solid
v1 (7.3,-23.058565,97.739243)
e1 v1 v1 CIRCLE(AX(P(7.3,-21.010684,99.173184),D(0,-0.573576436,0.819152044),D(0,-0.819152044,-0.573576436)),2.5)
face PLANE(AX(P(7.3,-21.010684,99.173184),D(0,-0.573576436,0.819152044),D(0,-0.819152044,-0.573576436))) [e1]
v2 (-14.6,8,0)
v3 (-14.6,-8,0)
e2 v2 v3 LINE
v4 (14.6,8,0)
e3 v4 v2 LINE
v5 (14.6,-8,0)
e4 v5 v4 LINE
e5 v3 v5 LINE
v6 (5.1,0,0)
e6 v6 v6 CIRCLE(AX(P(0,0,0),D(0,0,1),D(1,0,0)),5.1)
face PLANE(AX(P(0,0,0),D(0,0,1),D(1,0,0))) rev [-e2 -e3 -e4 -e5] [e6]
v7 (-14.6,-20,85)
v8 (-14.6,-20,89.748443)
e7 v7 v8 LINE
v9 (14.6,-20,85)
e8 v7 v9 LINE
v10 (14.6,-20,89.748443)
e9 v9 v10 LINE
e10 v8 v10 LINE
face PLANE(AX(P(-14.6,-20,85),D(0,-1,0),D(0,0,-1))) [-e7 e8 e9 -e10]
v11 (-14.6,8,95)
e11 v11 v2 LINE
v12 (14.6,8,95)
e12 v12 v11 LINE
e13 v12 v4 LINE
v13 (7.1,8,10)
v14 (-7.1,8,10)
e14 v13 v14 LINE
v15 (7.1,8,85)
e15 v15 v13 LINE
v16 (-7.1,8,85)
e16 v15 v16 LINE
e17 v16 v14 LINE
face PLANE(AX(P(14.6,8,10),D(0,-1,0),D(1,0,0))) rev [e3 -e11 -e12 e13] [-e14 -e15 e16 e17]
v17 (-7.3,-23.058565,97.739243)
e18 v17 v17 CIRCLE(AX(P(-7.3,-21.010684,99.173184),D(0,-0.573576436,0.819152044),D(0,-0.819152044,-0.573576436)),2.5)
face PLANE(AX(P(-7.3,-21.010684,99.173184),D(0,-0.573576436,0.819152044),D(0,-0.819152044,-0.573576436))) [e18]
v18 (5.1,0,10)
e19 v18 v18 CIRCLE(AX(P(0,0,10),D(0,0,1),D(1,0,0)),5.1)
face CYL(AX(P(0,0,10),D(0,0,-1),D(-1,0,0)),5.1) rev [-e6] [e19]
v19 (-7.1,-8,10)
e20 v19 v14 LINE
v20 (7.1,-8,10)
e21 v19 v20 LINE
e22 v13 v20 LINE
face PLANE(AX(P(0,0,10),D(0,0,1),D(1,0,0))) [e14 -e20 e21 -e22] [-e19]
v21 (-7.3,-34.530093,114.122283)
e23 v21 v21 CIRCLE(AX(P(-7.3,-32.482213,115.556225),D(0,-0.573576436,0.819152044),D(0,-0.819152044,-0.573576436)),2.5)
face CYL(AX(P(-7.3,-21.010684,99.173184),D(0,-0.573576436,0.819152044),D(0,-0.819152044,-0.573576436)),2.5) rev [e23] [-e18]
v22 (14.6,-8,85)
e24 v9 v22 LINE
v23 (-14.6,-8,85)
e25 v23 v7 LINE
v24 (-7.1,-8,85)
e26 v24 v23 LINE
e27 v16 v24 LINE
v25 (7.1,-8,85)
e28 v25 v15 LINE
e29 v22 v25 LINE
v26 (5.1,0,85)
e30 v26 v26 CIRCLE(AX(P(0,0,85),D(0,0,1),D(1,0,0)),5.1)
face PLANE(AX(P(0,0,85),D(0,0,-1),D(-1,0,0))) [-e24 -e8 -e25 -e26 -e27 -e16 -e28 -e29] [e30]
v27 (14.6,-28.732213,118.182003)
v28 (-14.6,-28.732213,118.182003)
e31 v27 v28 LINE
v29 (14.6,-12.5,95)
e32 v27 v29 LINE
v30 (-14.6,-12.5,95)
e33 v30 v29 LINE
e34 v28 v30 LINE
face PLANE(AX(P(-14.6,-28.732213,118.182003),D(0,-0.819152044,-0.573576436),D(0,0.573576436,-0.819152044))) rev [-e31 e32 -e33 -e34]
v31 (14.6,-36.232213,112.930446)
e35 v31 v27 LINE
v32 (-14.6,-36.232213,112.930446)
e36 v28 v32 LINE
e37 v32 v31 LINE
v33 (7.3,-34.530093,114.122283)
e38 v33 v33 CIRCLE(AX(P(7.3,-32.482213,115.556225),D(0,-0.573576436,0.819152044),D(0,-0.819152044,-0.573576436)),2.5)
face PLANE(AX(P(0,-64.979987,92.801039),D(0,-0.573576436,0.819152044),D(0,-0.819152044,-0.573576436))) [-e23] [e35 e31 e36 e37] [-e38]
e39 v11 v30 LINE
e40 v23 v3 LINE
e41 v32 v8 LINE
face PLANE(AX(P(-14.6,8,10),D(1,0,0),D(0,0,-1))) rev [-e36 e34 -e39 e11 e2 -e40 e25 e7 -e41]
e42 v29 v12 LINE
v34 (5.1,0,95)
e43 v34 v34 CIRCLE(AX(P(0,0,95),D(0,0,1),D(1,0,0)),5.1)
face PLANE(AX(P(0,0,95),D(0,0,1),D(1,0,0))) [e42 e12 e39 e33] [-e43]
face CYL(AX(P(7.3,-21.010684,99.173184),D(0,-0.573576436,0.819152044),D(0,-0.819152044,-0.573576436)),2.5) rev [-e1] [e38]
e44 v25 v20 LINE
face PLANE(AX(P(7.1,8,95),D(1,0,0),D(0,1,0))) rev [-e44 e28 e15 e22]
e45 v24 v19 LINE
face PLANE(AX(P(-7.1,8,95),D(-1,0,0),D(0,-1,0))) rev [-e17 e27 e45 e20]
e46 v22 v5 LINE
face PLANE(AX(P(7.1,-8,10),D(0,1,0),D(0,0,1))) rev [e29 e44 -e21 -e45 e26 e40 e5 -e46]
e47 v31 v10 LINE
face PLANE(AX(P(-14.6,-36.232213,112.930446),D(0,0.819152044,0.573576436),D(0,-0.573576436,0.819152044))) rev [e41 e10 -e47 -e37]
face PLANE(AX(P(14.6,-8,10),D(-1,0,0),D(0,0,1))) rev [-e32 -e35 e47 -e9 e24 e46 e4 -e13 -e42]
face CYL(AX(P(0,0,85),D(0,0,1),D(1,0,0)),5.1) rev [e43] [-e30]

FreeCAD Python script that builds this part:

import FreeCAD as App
import Part
import Sketcher

V = App.Vector
Q = App.Units.Quantity

doc = App.newDocument("Part")
body = doc.addObject("PartDesign::Body", "Body")

sketch1 = doc.addObject("Sketcher::SketchObject", "Sketch")
body.addObject(sketch1)
sketch1.AttachmentSupport = (doc.XY_Plane, [""])
sketch1.MapMode = "FlatFace"
sketch1.addGeometry(Part.LineSegment(V(-15, 8, 0), V(-15, -8, 0)), False)
sketch1.addGeometry(Part.LineSegment(V(-15, -8, 0), V(15, -8, 0)), False)
sketch1.addGeometry(Part.LineSegment(V(15, -8, 0), V(15, 8, 0)), False)
sketch1.addGeometry(Part.LineSegment(V(15, 8, 0), V(-15, 8, 0)), False)
sketch1.addGeometry(Part.Circle(V(0, 0, 0), V(0, 0, 1), 5), False)
sketch1.addConstraint(Sketcher.Constraint("Coincident", 0, 2, 1, 1))
sketch1.addConstraint(Sketcher.Constraint("Coincident", 1, 2, 2, 1))
sketch1.addConstraint(Sketcher.Constraint("Coincident", 2, 2, 3, 1))
sketch1.addConstraint(Sketcher.Constraint("Coincident", 3, 2, 0, 1))
sketch1.addConstraint(Sketcher.Constraint("Vertical", 0))
sketch1.addConstraint(Sketcher.Constraint("Horizontal", 1))
sketch1.addConstraint(Sketcher.Constraint("Vertical", 2))
sketch1.addConstraint(Sketcher.Constraint("Horizontal", 3))
sketch1.addConstraint(Sketcher.Constraint("Coincident", 4, 3, -1, 1))
sketch1.addConstraint(Sketcher.Constraint("Symmetric", 0, 2, 2, 2, -1, 1))
sketch1.addConstraint(Sketcher.Constraint("Diameter", 4, Q("10.2 mm")))
sketch1.addConstraint(Sketcher.Constraint("DistanceY", 0, 2, 0, 1, Q("16 mm")))
sketch1.addConstraint(Sketcher.Constraint("DistanceX", 1, 1, 1, 2, Q("29.2 mm")))
pad1 = doc.addObject("PartDesign::Pad", "Pad")
body.addObject(pad1)
pad1.Profile = sketch1
pad1.Length = 10

sketch2 = doc.addObject("Sketcher::SketchObject", "Sketch001")
body.addObject(sketch2)
sketch2.AttachmentSupport = (doc.XY_Plane, [""])
sketch2.MapMode = "FlatFace"
sketch2.AttachmentOffset = App.Placement(V(0, 0, 10), App.Rotation())
sketch2.addGeometry(Part.LineSegment(V(-15, 8, 0), V(-15, -8, 0)), False)
sketch2.addGeometry(Part.LineSegment(V(-15, -8, 0), V(-7, -8, 0)), False)
sketch2.addGeometry(Part.LineSegment(V(-7, -8, 0), V(-7, 8, 0)), False)
sketch2.addGeometry(Part.LineSegment(V(-7, 8, 0), V(-15, 8, 0)), False)
sketch2.addGeometry(Part.LineSegment(V(7, 8, 0), V(7, -8, 0)), False)
sketch2.addGeometry(Part.LineSegment(V(7, -8, 0), V(15, -8, 0)), False)
sketch2.addGeometry(Part.LineSegment(V(15, -8, 0), V(15, 8, 0)), False)
sketch2.addGeometry(Part.LineSegment(V(15, 8, 0), V(7, 8, 0)), False)
sketch2.addConstraint(Sketcher.Constraint("Coincident", 0, 2, 1, 1))
sketch2.addConstraint(Sketcher.Constraint("Coincident", 1, 2, 2, 1))
sketch2.addConstraint(Sketcher.Constraint("Coincident", 2, 2, 3, 1))
sketch2.addConstraint(Sketcher.Constraint("Coincident", 3, 2, 0, 1))
sketch2.addConstraint(Sketcher.Constraint("Coincident", 4, 2, 5, 1))
sketch2.addConstraint(Sketcher.Constraint("Coincident", 5, 2, 6, 1))
sketch2.addConstraint(Sketcher.Constraint("Coincident", 6, 2, 7, 1))
sketch2.addConstraint(Sketcher.Constraint("Coincident", 7, 2, 4, 1))
sketch2.addConstraint(Sketcher.Constraint("Vertical", 0))
sketch2.addConstraint(Sketcher.Constraint("Horizontal", 1))
sketch2.addConstraint(Sketcher.Constraint("Vertical", 2))
sketch2.addConstraint(Sketcher.Constraint("Horizontal", 3))
sketch2.addConstraint(Sketcher.Constraint("Vertical", 4))
sketch2.addConstraint(Sketcher.Constraint("Horizontal", 5))
sketch2.addConstraint(Sketcher.Constraint("Vertical", 6))
sketch2.addConstraint(Sketcher.Constraint("Horizontal", 7))
sketch2.addConstraint(Sketcher.Constraint("Symmetric", 2, 2, 4, 2, -1, 1))
sketch2.addConstraint(Sketcher.Constraint("Symmetric", 0, 2, 6, 2, -1, 1))
sketch2.addConstraint(Sketcher.Constraint("Horizontal", 1, 2, 4, 2))
sketch2.addConstraint(Sketcher.Constraint("DistanceY", 0, 2, 0, 1, Q("16 mm")))
sketch2.addConstraint(Sketcher.Constraint("DistanceX", 1, 1, 1, 2, Q("7.5 mm")))
sketch2.addConstraint(Sketcher.Constraint("DistanceX", 0, 2, -1, 1, Q("14.6 mm")))
pad2 = doc.addObject("PartDesign::Pad", "Pad001")
body.addObject(pad2)
pad2.Profile = sketch2
pad2.Length = 85

sketch3 = doc.addObject("Sketcher::SketchObject", "Sketch002")
body.addObject(sketch3)
sketch3.AttachmentSupport = (doc.XY_Plane, [""])
sketch3.MapMode = "FlatFace"
sketch3.AttachmentOffset = App.Placement(V(0, 0, 95), App.Rotation())
sketch3.addGeometry(Part.LineSegment(V(-15, 8, 0), V(-15, -8, 0)), False)
sketch3.addGeometry(Part.LineSegment(V(-15, -8, 0), V(15, -8, 0)), False)
sketch3.addGeometry(Part.LineSegment(V(15, -8, 0), V(15, 8, 0)), False)
sketch3.addGeometry(Part.LineSegment(V(15, 8, 0), V(-15, 8, 0)), False)
sketch3.addGeometry(Part.Circle(V(0, 0, 0), V(0, 0, 1), 5), False)
sketch3.addConstraint(Sketcher.Constraint("Coincident", 0, 2, 1, 1))
sketch3.addConstraint(Sketcher.Constraint("Coincident", 1, 2, 2, 1))
sketch3.addConstraint(Sketcher.Constraint("Coincident", 2, 2, 3, 1))
sketch3.addConstraint(Sketcher.Constraint("Coincident", 3, 2, 0, 1))
sketch3.addConstraint(Sketcher.Constraint("Vertical", 0))
sketch3.addConstraint(Sketcher.Constraint("Horizontal", 1))
sketch3.addConstraint(Sketcher.Constraint("Vertical", 2))
sketch3.addConstraint(Sketcher.Constraint("Horizontal", 3))
sketch3.addConstraint(Sketcher.Constraint("Coincident", 4, 3, -1, 1))
sketch3.addConstraint(Sketcher.Constraint("Symmetric", 0, 2, 2, 2, -1, 1))
sketch3.addConstraint(Sketcher.Constraint("Diameter", 4, Q("10.2 mm")))
sketch3.addConstraint(Sketcher.Constraint("DistanceY", 0, 2, 0, 1, Q("16 mm")))
sketch3.addConstraint(Sketcher.Constraint("DistanceX", 1, 1, 1, 2, Q("29.2 mm")))
pad3 = doc.addObject("PartDesign::Pad", "Pad002")
body.addObject(pad3)
pad3.Profile = sketch3
pad3.Length = 10
pad3.Reversed = True

sketch4 = doc.addObject("Sketcher::SketchObject", "Sketch003")
body.addObject(sketch4)
sketch4.AttachmentSupport = (doc.XY_Plane, [""])
sketch4.MapMode = "FlatFace"
sketch4.AttachmentOffset = App.Placement(V(0, 0, 95), App.Rotation())
sketch4.addGeometry(Part.LineSegment(V(-15, -8, 0), V(-15, -20, 0)), False)
sketch4.addGeometry(Part.LineSegment(V(-15, -20, 0), V(15, -20, 0)), False)
sketch4.addGeometry(Part.LineSegment(V(15, -20, 0), V(15, -8, 0)), False)
sketch4.addGeometry(Part.LineSegment(V(15, -8, 0), V(-15, -8, 0)), False)
sketch4.addConstraint(Sketcher.Constraint("Coincident", 0, 2, 1, 1))
sketch4.addConstraint(Sketcher.Constraint("Coincident", 1, 2, 2, 1))
sketch4.addConstraint(Sketcher.Constraint("Coincident", 2, 2, 3, 1))
sketch4.addConstraint(Sketcher.Constraint("Coincident", 3, 2, 0, 1))
sketch4.addConstraint(Sketcher.Constraint("Vertical", 0))
sketch4.addConstraint(Sketcher.Constraint("Horizontal", 1))
sketch4.addConstraint(Sketcher.Constraint("Vertical", 2))
sketch4.addConstraint(Sketcher.Constraint("Horizontal", 3))
sketch4.addConstraint(Sketcher.Constraint("DistanceY", 0, 2, 0, 1, Q("12 mm")))
sketch4.addConstraint(Sketcher.Constraint("DistanceX", 1, 1, 1, 2, Q("29.2 mm")))
sketch4.addConstraint(Sketcher.Constraint("DistanceY", 0, 2, -1, 1, Q("20 mm")))
sketch4.addConstraint(Sketcher.Constraint("DistanceX", 0, 2, -1, 1, Q("14.6 mm")))
pad4 = doc.addObject("PartDesign::Pad", "Pad003")
body.addObject(pad4)
pad4.Profile = sketch4
pad4.Length = 10
pad4.Reversed = True

sketch5 = doc.addObject("Sketcher::SketchObject", "Sketch004")
body.addObject(sketch5)
sketch5.AttachmentSupport = (doc.YZ_Plane, [""])
sketch5.MapMode = "FlatFace"
sketch5.AttachmentOffset = App.Placement(V(0, 0, 14.6), App.Rotation())
sketch5.addGeometry(Part.LineSegment(V(-20, 90, 0), V(-12, 95, 0)), False)
sketch5.addGeometry(Part.LineSegment(V(-12, 95, 0), V(-20, 95, 0)), False)
sketch5.addGeometry(Part.LineSegment(V(-20, 95, 0), V(-20, 90, 0)), False)
sketch5.addConstraint(Sketcher.Constraint("Coincident", 0, 2, 1, 1))
sketch5.addConstraint(Sketcher.Constraint("Coincident", 1, 2, 2, 1))
sketch5.addConstraint(Sketcher.Constraint("Coincident", 2, 2, 0, 1))
sketch5.addConstraint(Sketcher.Constraint("Horizontal", 1))
sketch5.addConstraint(Sketcher.Constraint("Vertical", 2))
sketch5.addConstraint(Sketcher.Constraint("Angle", 0, Q("35 deg")))
sketch5.addConstraint(Sketcher.Constraint("DistanceX", 1, 2, 1, 1, Q("7.5 mm")))
sketch5.addConstraint(Sketcher.Constraint("DistanceY", -1, 1, 0, 2, Q("95 mm")))
sketch5.addConstraint(Sketcher.Constraint("DistanceX", 1, 2, -1, 1, Q("20 mm")))
pocket1 = doc.addObject("PartDesign::Pocket", "Pocket")
body.addObject(pocket1)
pocket1.Profile = sketch5
pocket1.Type = "UpToFirst"

sketch6 = doc.addObject("Sketcher::SketchObject", "Sketch005")
body.addObject(sketch6)
sketch6.Placement = App.Placement(V(0, -48.747774, 69.619036), App.Rotation(V(1, 0, 0), V(0, 0.819152044, 0.573576436), V(0, -0.573576436, 0.819152044), "ZXY"))
sketch6.addGeometry(Part.LineSegment(V(-15, 44, 0), V(-15, 35, 0)), False)
sketch6.addGeometry(Part.LineSegment(V(-15, 35, 0), V(15, 35, 0)), False)
sketch6.addGeometry(Part.LineSegment(V(15, 35, 0), V(15, 44, 0)), False)
sketch6.addGeometry(Part.LineSegment(V(15, 44, 0), V(-15, 44, 0)), False)
sketch6.addConstraint(Sketcher.Constraint("Coincident", 0, 2, 1, 1))
sketch6.addConstraint(Sketcher.Constraint("Coincident", 1, 2, 2, 1))
sketch6.addConstraint(Sketcher.Constraint("Coincident", 2, 2, 3, 1))
sketch6.addConstraint(Sketcher.Constraint("Coincident", 3, 2, 0, 1))
sketch6.addConstraint(Sketcher.Constraint("Vertical", 0))
sketch6.addConstraint(Sketcher.Constraint("Horizontal", 1))
sketch6.addConstraint(Sketcher.Constraint("Vertical", 2))
sketch6.addConstraint(Sketcher.Constraint("Horizontal", 3))
sketch6.addConstraint(Sketcher.Constraint("DistanceX", 1, 1, 1, 2, Q("29.2 mm")))
sketch6.addConstraint(Sketcher.Constraint("DistanceX", 0, 2, -1, 1, Q("14.6 mm")))
sketch6.addConstraint(Sketcher.Constraint("DistanceY", 0, 2, 0, 1, Q("9.155809 mm")))
sketch6.addConstraint(Sketcher.Constraint("DistanceY", -1, 1, 0, 2, Q("35.094551 mm")))
pad5 = doc.addObject("PartDesign::Pad", "Pad004")
body.addObject(pad5)
pad5.Profile = sketch6
pad5.Length = 28.3

sketch7 = doc.addObject("Sketcher::SketchObject", "Sketch006")
body.addObject(sketch7)
sketch7.Placement = App.Placement(V(0, -64.979987, 92.801039), App.Rotation(V(1, 0, 0), V(0, 0.819152044, 0.573576436), V(0, -0.573576436, 0.819152044), "ZXY"))
sketch7.addGeometry(Part.Circle(V(-7.3, 39.7, 0), V(0, 0, 1), 2.5), False)
sketch7.addGeometry(Part.Circle(V(7.3, 39.7, 0), V(0, 0, 1), 2.5), False)
sketch7.addConstraint(Sketcher.Constraint("Equal", 0, 1))
sketch7.addConstraint(Sketcher.Constraint("Symmetric", 0, 3, 1, 3, -2))
sketch7.addConstraint(Sketcher.Constraint("Diameter", 0, Q("5 mm")))
sketch7.addConstraint(Sketcher.Constraint("DistanceX", 0, 3, -1, 1, Q("7.3 mm")))
sketch7.addConstraint(Sketcher.Constraint("DistanceY", -1, 1, 0, 3, Q("39.672456 mm")))
pocket2 = doc.addObject("PartDesign::Pocket", "Pocket001")
body.addObject(pocket2)
pocket2.Profile = sketch7
pocket2.Length = 20

doc.recompute()
